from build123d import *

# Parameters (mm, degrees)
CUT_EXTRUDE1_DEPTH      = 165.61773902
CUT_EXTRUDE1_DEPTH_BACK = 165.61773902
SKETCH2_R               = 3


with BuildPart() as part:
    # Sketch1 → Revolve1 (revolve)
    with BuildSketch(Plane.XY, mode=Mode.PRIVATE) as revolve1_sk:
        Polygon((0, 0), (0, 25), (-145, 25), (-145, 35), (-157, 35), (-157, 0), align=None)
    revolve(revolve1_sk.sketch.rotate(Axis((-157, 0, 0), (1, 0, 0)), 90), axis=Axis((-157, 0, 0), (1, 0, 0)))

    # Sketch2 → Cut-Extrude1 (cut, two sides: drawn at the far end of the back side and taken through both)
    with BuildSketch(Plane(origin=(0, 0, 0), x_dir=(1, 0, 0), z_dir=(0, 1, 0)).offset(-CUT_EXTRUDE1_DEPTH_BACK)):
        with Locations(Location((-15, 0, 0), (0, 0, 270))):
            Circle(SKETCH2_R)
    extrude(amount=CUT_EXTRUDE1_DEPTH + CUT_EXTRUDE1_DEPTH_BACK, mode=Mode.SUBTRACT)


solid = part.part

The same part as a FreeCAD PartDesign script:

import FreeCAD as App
import Part
import Sketcher
from FreeCAD import Vector


def add_polygon(sketch, points):
    """Adds a closed chain of lines whose ends are joined by coincident constraints."""
    first, n = sketch.GeometryCount, len(points)
    for a, b in zip(points, points[1:] + points[:1]):
        sketch.addGeometry(Part.LineSegment(App.Vector(*a, 0), App.Vector(*b, 0)), False)
    for i in range(n):
        sketch.addConstraint(Sketcher.Constraint("Coincident", first + i, 2, first + (i + 1) % n, 1))

doc = App.newDocument("Part")
params = doc.addObject("Spreadsheet::Sheet", "Params")
for row, (alias, value) in enumerate([
    ("sketch1_width", "145 mm"),
    ("sketch1_width2", "12 mm"),
    ("sketch1_height", "25 mm"),
    ("sketch1_height2", "10 mm"),
    ("revolution_angle", "360 deg"),
    ("sketch2_diameter", "6 mm"),
], start=1):
    params.set(f"A{row}", alias)
    params.set(f"B{row}", "=" + value)
    params.setAlias(f"B{row}", alias)

body = doc.addObject("PartDesign::Body", "Body")

sketch1 = body.newObject("Sketcher::SketchObject", "Sketch")
sketch1.AttachmentSupport = (doc.getObject("XY_Plane"), [""])
sketch1.MapMode = "FlatFace"
add_polygon(sketch1, [(0, 0), (0, 25), (-145, 25), (-145, 35), (-157, 35), (-157, 0)])
sketch1.addConstraint(Sketcher.Constraint("Vertical", 0))
sketch1.addConstraint(Sketcher.Constraint("Horizontal", 1))
sketch1.addConstraint(Sketcher.Constraint("Vertical", 2))
sketch1.addConstraint(Sketcher.Constraint("Horizontal", 3))
sketch1.addConstraint(Sketcher.Constraint("Vertical", 4))
sketch1.addConstraint(Sketcher.Constraint("Horizontal", 5))
sketch1.addConstraint(Sketcher.Constraint("Coincident", 5, 2, -1, 1))
sketch1.addConstraint(Sketcher.Constraint("DistanceX", 1, 2, 1, 1, 145.0))
sketch1.addConstraint(Sketcher.Constraint("DistanceX", 3, 2, 3, 1, 12.0))
sketch1.addConstraint(Sketcher.Constraint("DistanceY", 0, 1, 0, 2, 25.0))
sketch1.addConstraint(Sketcher.Constraint("DistanceY", 2, 1, 2, 2, 10.0))
sketch1.setExpression("Constraints[13]", "Params.sketch1_width")
sketch1.setExpression("Constraints[14]", "Params.sketch1_width2")
sketch1.setExpression("Constraints[15]", "Params.sketch1_height")
sketch1.setExpression("Constraints[16]", "Params.sketch1_height2")
revolution = body.newObject("PartDesign::Revolution", "Revolution")
revolution.Profile = sketch1
revolution.ReferenceAxis = (sketch1, ["H_Axis"])
revolution.setExpression("Angle", "Params.revolution_angle")

sketch2 = body.newObject("Sketcher::SketchObject", "Sketch001")
sketch2.AttachmentSupport = (doc.getObject("XZ_Plane"), [""])
sketch2.MapMode = "FlatFace"
sketch2.addGeometry(Part.Circle(Vector(-15, 0, 0), Vector(0, 0, 1), 3), False)
sketch2.addConstraint(Sketcher.Constraint("PointOnObject", 0, 3, -1))
sketch2.addConstraint(Sketcher.Constraint("Diameter", 0, 6.0))
sketch2.addConstraint(Sketcher.Constraint("DistanceX", 0, 3, -1, 1, 15.0))
sketch2.setExpression("Constraints[1]", "Params.sketch2_diameter")
pocket1 = body.newObject("PartDesign::Pocket", "Pocket")
pocket1.Profile = sketch2
pocket1.Type = "ThroughAll"
pocket1.Midplane = True

doc.recompute()
